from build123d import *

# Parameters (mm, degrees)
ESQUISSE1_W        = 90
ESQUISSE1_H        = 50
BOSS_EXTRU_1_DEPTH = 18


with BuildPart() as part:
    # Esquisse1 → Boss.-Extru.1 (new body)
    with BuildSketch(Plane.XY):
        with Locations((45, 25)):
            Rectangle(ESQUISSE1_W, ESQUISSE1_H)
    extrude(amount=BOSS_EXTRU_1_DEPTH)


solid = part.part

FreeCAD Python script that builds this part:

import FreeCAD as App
import Part
import Sketcher

V = App.Vector
Q = App.Units.Quantity


def add_polygon(sketch, points):
    """Adds a closed chain of lines whose ends are joined by coincident constraints."""
    first, n = sketch.GeometryCount, len(points)
    for a, b in zip(points, points[1:] + points[:1]):
        sketch.addGeometry(Part.LineSegment(App.Vector(*a, 0), App.Vector(*b, 0)), False)
    for i in range(n):
        sketch.addConstraint(Sketcher.Constraint("Coincident", first + i, 2, first + (i + 1) % n, 1))

doc = App.newDocument("Part")
body = doc.addObject("PartDesign::Body", "Body")

# Sketch on XY plane
sketch1 = body.newObject("Sketcher::SketchObject", "Sketch")
sketch1.AttachmentSupport = (doc.getObject("XY_Plane"), [""])
sketch1.MapMode = "FlatFace"
add_polygon(sketch1, [(0, 50), (0, 0), (90, 0), (90, 50)])  # lines 0-3
sketch1.addConstraint(Sketcher.Constraint("Vertical", 0))
sketch1.addConstraint(Sketcher.Constraint("Horizontal", 1))
sketch1.addConstraint(Sketcher.Constraint("Vertical", 2))
sketch1.addConstraint(Sketcher.Constraint("Horizontal", 3))
sketch1.addConstraint(Sketcher.Constraint("Coincident", 0, 2, -1, 1))
sketch1.addConstraint(Sketcher.Constraint("DistanceX", 1, 1, 1, 2, Q("90 mm")))
sketch1.addConstraint(Sketcher.Constraint("DistanceY", 0, 2, 0, 1, Q("50 mm")))
pad1 = body.newObject("PartDesign::Pad", "Pad")
pad1.Profile = sketch1
pad1.Length = 18

doc.recompute()
